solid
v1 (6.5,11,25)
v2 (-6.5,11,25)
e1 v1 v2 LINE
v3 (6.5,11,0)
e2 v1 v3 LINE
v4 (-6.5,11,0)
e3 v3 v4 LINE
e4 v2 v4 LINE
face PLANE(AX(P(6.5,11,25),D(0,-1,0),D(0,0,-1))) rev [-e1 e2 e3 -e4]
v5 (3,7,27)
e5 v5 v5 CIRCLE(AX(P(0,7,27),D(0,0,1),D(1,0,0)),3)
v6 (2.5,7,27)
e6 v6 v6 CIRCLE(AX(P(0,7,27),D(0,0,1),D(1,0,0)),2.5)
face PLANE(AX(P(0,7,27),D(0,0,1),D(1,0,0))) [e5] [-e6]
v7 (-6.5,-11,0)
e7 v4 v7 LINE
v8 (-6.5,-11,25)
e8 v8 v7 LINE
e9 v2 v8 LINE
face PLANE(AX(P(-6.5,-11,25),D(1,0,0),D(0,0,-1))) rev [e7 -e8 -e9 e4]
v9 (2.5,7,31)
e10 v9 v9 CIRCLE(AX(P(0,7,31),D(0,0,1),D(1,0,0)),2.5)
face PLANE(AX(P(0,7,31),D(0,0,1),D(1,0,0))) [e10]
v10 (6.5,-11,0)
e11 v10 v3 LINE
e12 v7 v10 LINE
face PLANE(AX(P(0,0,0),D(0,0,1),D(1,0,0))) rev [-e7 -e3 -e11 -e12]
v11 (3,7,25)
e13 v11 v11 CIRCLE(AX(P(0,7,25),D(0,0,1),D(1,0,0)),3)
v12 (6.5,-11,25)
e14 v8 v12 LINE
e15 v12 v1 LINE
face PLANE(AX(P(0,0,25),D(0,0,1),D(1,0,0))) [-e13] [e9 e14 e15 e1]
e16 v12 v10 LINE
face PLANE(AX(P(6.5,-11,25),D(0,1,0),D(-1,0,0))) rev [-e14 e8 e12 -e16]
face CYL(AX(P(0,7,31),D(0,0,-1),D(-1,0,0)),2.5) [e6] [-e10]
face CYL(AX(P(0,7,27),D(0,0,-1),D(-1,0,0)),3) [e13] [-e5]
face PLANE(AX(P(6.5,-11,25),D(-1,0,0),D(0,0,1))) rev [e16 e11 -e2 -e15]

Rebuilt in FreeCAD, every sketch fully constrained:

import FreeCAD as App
import Part
import Sketcher
from FreeCAD import Vector


def add_polygon(sketch, points):
    """Adds a closed chain of lines whose ends are joined by coincident constraints."""
    first, n = sketch.GeometryCount, len(points)
    for a, b in zip(points, points[1:] + points[:1]):
        sketch.addGeometry(Part.LineSegment(App.Vector(*a, 0), App.Vector(*b, 0)), False)
    for i in range(n):
        sketch.addConstraint(Sketcher.Constraint("Coincident", first + i, 2, first + (i + 1) % n, 1))

doc = App.newDocument("Part")
body = doc.addObject("PartDesign::Body", "Body")

sketch1 = doc.addObject("Sketcher::SketchObject", "Sketch")
body.addObject(sketch1)
sketch1.AttachmentSupport = (doc.XY_Plane, [""])
sketch1.MapMode = "FlatFace"
add_polygon(sketch1, [(-6.5, 11), (-6.5, -11), (6.5, -11), (6.5, 11)])
sketch1.addConstraint(Sketcher.Constraint("Vertical", 0))
sketch1.addConstraint(Sketcher.Constraint("Horizontal", 1))
sketch1.addConstraint(Sketcher.Constraint("Vertical", 2))
sketch1.addConstraint(Sketcher.Constraint("Horizontal", 3))
sketch1.addConstraint(Sketcher.Constraint("Symmetric", 0, 2, 2, 2, -1, 1))
sketch1.addConstraint(Sketcher.Constraint("DistanceX", 1, 1, 1, 2, 13.0))
sketch1.addConstraint(Sketcher.Constraint("DistanceY", 0, 2, 0, 1, 22.0))
pad1 = doc.addObject("PartDesign::Pad", "Pad")
body.addObject(pad1)
pad1.Profile = sketch1
pad1.Length = 25

sketch2 = doc.addObject("Sketcher::SketchObject", "Sketch001")
body.addObject(sketch2)
sketch2.AttachmentSupport = (doc.XY_Plane, [""])
sketch2.MapMode = "FlatFace"
sketch2.AttachmentOffset = App.Placement(Vector(0, 0, 25), App.Rotation())
sketch2.addGeometry(Part.Circle(Vector(0, 7, 0), Vector(0, 0, 1), 3), False)
sketch2.addConstraint(Sketcher.Constraint("PointOnObject", 0, 3, -2))
sketch2.addConstraint(Sketcher.Constraint("Diameter", 0, 6.0))
sketch2.addConstraint(Sketcher.Constraint("DistanceY", -1, 1, 0, 3, 7.0))
pad2 = doc.addObject("PartDesign::Pad", "Pad001")
body.addObject(pad2)
pad2.Profile = sketch2
pad2.Length = 2

sketch3 = doc.addObject("Sketcher::SketchObject", "Sketch002")
body.addObject(sketch3)
sketch3.AttachmentSupport = (doc.XY_Plane, [""])
sketch3.MapMode = "FlatFace"
sketch3.AttachmentOffset = App.Placement(Vector(0, 0, 27), App.Rotation())
sketch3.addGeometry(Part.Circle(Vector(0, 7, 0), Vector(0, 0, 1), 2.5), False)
sketch3.addConstraint(Sketcher.Constraint("PointOnObject", 0, 3, -2))
sketch3.addConstraint(Sketcher.Constraint("Diameter", 0, 5.0))
sketch3.addConstraint(Sketcher.Constraint("DistanceY", -1, 1, 0, 3, 7.0))
pad3 = doc.addObject("PartDesign::Pad", "Pad002")
body.addObject(pad3)
pad3.Profile = sketch3
pad3.Length = 4

doc.recompute()
